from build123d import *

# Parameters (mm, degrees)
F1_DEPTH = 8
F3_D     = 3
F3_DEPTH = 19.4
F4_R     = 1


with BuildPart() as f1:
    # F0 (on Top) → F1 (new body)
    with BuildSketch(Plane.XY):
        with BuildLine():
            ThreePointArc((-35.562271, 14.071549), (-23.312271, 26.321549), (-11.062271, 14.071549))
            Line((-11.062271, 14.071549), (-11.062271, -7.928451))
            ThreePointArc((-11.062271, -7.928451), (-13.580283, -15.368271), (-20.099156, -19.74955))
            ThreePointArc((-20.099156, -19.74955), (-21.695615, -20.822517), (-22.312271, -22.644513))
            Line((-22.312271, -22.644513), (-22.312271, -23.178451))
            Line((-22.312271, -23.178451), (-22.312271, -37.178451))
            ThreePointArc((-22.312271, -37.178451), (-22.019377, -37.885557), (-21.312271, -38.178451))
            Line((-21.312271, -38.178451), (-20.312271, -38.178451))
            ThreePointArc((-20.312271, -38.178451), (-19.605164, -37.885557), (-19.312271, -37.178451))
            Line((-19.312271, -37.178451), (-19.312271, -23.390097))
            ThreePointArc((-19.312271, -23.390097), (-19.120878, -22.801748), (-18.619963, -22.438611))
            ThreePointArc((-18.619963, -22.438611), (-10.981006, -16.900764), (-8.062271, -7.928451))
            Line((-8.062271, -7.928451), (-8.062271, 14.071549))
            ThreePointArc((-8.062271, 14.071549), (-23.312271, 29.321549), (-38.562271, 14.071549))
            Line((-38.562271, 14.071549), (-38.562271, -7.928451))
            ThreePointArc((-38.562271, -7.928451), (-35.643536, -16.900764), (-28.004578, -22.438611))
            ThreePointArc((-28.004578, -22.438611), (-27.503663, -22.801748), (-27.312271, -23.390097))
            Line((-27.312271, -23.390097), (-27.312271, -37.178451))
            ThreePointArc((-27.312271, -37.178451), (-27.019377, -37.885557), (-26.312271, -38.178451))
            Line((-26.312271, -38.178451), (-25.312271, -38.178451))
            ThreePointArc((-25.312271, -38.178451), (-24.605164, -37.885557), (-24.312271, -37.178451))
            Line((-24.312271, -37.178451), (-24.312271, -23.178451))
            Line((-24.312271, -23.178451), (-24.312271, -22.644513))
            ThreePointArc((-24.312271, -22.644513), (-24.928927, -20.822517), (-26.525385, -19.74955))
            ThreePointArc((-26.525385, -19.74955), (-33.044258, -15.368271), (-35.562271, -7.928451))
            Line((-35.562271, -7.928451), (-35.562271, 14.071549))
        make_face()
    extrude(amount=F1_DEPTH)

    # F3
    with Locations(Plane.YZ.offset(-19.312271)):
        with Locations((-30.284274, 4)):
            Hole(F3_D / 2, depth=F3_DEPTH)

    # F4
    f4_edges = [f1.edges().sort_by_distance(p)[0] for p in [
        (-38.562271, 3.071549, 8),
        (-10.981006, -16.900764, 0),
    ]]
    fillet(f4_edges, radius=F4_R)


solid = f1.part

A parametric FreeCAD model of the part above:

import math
import FreeCAD as App
import Part
import Sketcher


def edges_at(feature, points):
    """Names of the edges that pass closest to the given points."""
    edges = feature.Shape.Edges
    near = lambda p: min(range(len(edges)), key=lambda i: edges[i].distToShape(Part.Vertex(*p))[0])
    return sorted({f"Edge{near(p) + 1}" for p in points})

doc = App.newDocument("Part")
body = doc.addObject("PartDesign::Body", "Body")

sketch1 = doc.addObject("Sketcher::SketchObject", "Sketch")
body.addObject(sketch1)
sketch1.AttachmentSupport = (doc.XY_Plane, [""])
sketch1.MapMode = "FlatFace"
sketch1.addGeometry([
    Part.ArcOfCircle(Part.Circle(App.Vector(-23.3, 14.1, 0), App.Vector(0, 0, 1), 12.2), math.radians(0), math.radians(180)),
    Part.LineSegment(App.Vector(-11.1, 14.1, 0), App.Vector(-11.1, -7.9, 0)),
    Part.ArcOfCircle(Part.Circle(App.Vector(-23.3, -7.9, 0), App.Vector(0, 0, 1), 12.2), math.radians(-75), math.radians(0)),
    Part.ArcOfCircle(Part.Circle(App.Vector(-19.3, -22.6, 0), App.Vector(0, 0, 1), 3), math.radians(105), math.radians(180)),
    Part.LineSegment(App.Vector(-22.3, -22.6, 0), App.Vector(-22.3, -37.2, 0)),
    Part.ArcOfCircle(Part.Circle(App.Vector(-21.3, -37.2, 0), App.Vector(0, 0, 1), 1), math.radians(-180), math.radians(-90)),
    Part.LineSegment(App.Vector(-21.3, -38.2, 0), App.Vector(-20.3, -38.2, 0)),
    Part.ArcOfCircle(Part.Circle(App.Vector(-20.3, -37.2, 0), App.Vector(0, 0, 1), 1), math.radians(-90), math.radians(0)),
    Part.LineSegment(App.Vector(-19.3, -37.2, 0), App.Vector(-19.3, -23.4, 0)),
    Part.ArcOfCircle(Part.Circle(App.Vector(-18.3, -23.4, 0), App.Vector(0, 0, 1), 1), math.radians(108), math.radians(180)),
    Part.ArcOfCircle(Part.Circle(App.Vector(-23.3, -7.9, 0), App.Vector(0, 0, 1), 15.3), math.radians(-72), math.radians(0)),
    Part.LineSegment(App.Vector(-8.1, -7.9, 0), App.Vector(-8.1, 14.1, 0)),
    Part.ArcOfCircle(Part.Circle(App.Vector(-23.3, 14.1, 0), App.Vector(0, 0, 1), 15.2), math.radians(0), math.radians(180)),
    Part.LineSegment(App.Vector(-38.6, 14.1, 0), App.Vector(-38.6, -7.9, 0)),
    Part.ArcOfCircle(Part.Circle(App.Vector(-23.3, -7.9, 0), App.Vector(0, 0, 1), 15.2), math.radians(180), math.radians(252)),
    Part.ArcOfCircle(Part.Circle(App.Vector(-28.3, -23.4, 0), App.Vector(0, 0, 1), 1), math.radians(0), math.radians(72)),
    Part.LineSegment(App.Vector(-27.3, -23.4, 0), App.Vector(-27.3, -37.2, 0)),
    Part.ArcOfCircle(Part.Circle(App.Vector(-26.3, -37.2, 0), App.Vector(0, 0, 1), 1), math.radians(-180), math.radians(-90)),
    Part.LineSegment(App.Vector(-26.3, -38.2, 0), App.Vector(-25.3, -38.2, 0)),
    Part.ArcOfCircle(Part.Circle(App.Vector(-25.3, -37.2, 0), App.Vector(0, 0, 1), 1), math.radians(-90), math.radians(0)),
    Part.LineSegment(App.Vector(-24.3, -37.2, 0), App.Vector(-24.3, -22.6, 0)),
    Part.ArcOfCircle(Part.Circle(App.Vector(-27.3, -22.6, 0), App.Vector(0, 0, 1), 3), math.radians(0), math.radians(75)),
    Part.ArcOfCircle(Part.Circle(App.Vector(-23.3, -7.9, 0), App.Vector(0, 0, 1), 12.2), math.radians(-180), math.radians(-105)),
    Part.LineSegment(App.Vector(-35.6, -7.9, 0), App.Vector(-35.6, 14.1, 0)),
], False)
sketch1.addConstraint([
    Sketcher.Constraint("Tangent", 0, 1, 1, 1),
    Sketcher.Constraint("Tangent", 1, 2, 2, 2),
    Sketcher.Constraint("Tangent", 2, 1, 3, 1),
    Sketcher.Constraint("Tangent", 3, 2, 4, 1),
    Sketcher.Constraint("Coincident", 4, 2, 5, 1),
    Sketcher.Constraint("Coincident", 5, 2, 6, 1),
    Sketcher.Constraint("Tangent", 6, 2, 7, 1),
    Sketcher.Constraint("Tangent", 7, 2, 8, 1),
    Sketcher.Constraint("Tangent", 8, 2, 9, 2),
    Sketcher.Constraint("Tangent", 9, 1, 10, 1),
    Sketcher.Constraint("Tangent", 10, 2, 11, 1),
    Sketcher.Constraint("Tangent", 11, 2, 12, 1),
    Sketcher.Constraint("Tangent", 12, 2, 13, 1),
    Sketcher.Constraint("Tangent", 13, 2, 14, 1),
    Sketcher.Constraint("Tangent", 14, 2, 15, 2),
    Sketcher.Constraint("Tangent", 15, 1, 16, 1),
    Sketcher.Constraint("Coincident", 16, 2, 17, 1),
    Sketcher.Constraint("Coincident", 17, 2, 18, 1),
    Sketcher.Constraint("Tangent", 18, 2, 19, 1),
    Sketcher.Constraint("Tangent", 19, 2, 20, 1),
    Sketcher.Constraint("Tangent", 20, 2, 21, 1),
    Sketcher.Constraint("Tangent", 21, 2, 22, 2),
    Sketcher.Constraint("Tangent", 22, 1, 23, 1),
    Sketcher.Constraint("Tangent", 23, 2, 0, 2),
    Sketcher.Constraint("Vertical", 1),
    Sketcher.Constraint("Vertical", 4),
    Sketcher.Constraint("Horizontal", 6),
    Sketcher.Constraint("Vertical", 8),
    Sketcher.Constraint("Vertical", 11),
    Sketcher.Constraint("Vertical", 13),
    Sketcher.Constraint("Vertical", 16),
    Sketcher.Constraint("Horizontal", 18),
    Sketcher.Constraint("Vertical", 20),
    Sketcher.Constraint("Vertical", 23),
    Sketcher.Constraint("Coincident", 10, 3, 2, 3),
    Sketcher.Constraint("Coincident", 12, 3, 0, 3),
    Sketcher.Constraint("Coincident", 14, 3, 2, 3),
    Sketcher.Constraint("Coincident", 22, 3, 2, 3),
    Sketcher.Constraint("Equal", 5, 7),
    Sketcher.Constraint("Equal", 7, 9),
    Sketcher.Constraint("Equal", 10, 12),
    Sketcher.Constraint("Equal", 7, 17),
    Sketcher.Constraint("Equal", 17, 19),
    Sketcher.Constraint("Equal", 3, 21),
    Sketcher.Constraint("Horizontal", 7, 3, 17, 3),
    Sketcher.Constraint("Horizontal", 3, 3, 21, 3),
    Sketcher.Constraint("Horizontal", 19, 3, 4, 2),
    Sketcher.Constraint("Horizontal", 15, 3, 8, 2),
    Sketcher.Constraint("Horizontal", 9, 1, 14, 2),
    Sketcher.Constraint("Horizontal", 7, 2, 16, 2),
    Sketcher.Constraint("Vertical", 3, 3, 7, 2),
    Sketcher.Constraint("Equal", 6, 18),
    Sketcher.Constraint("Radius", 3, 3.000001),
    Sketcher.Constraint("Radius", 7, 1.000001),
    Sketcher.Constraint("DistanceX", 6, 1, 6, 2, 1.0),
    Sketcher.Constraint("DistanceY", 1, 2, 1, 1, 22.0),
    Sketcher.Constraint("Radius", 0, 12.25),
    Sketcher.Constraint("Radius", 10, 15.25),
    Sketcher.Constraint("DistanceX", 0, 3, 3, 3, 4.000001),
    Sketcher.Constraint("DistanceY", 7, 3, 0, 3, 51.249999),
    Sketcher.Constraint("DistanceX", 0, 3, -1, 1, 23.312271),
    Sketcher.Constraint("DistanceY", -1, 1, 0, 3, 14.071549),
])
pad1 = doc.addObject("PartDesign::Pad", "Pad")
body.addObject(pad1)
pad1.Profile = sketch1
pad1.Length = 8

sketch2 = doc.addObject("Sketcher::SketchObject", "Sketch001")
body.addObject(sketch2)
sketch2.AttachmentSupport = (doc.YZ_Plane, [""])
sketch2.MapMode = "FlatFace"
sketch2.AttachmentOffset = App.Placement(App.Vector(0, 0, -19.312271), App.Rotation())
sketch2.addGeometry(Part.Circle(App.Vector(-30.3, 4, 0), App.Vector(0, 0, 1), 1.5), False)
sketch2.addConstraint([
    Sketcher.Constraint("Diameter", 0, 3.0),
    Sketcher.Constraint("DistanceY", -1, 1, 0, 3, 4.0),
    Sketcher.Constraint("DistanceX", 0, 3, -1, 1, 30.284274),
])
doc.recompute()
hole = doc.addObject("PartDesign::Hole", "Hole")
body.addObject(hole)
hole.Profile = sketch2
hole.ThreadType = "None"
hole.Diameter = 3
hole.DepthType = "Dimension"
hole.Depth = 19.4
hole.DrillPoint = "Flat"
doc.recompute()

fillet = doc.addObject("PartDesign::Fillet", "Fillet")
body.addObject(fillet)
fillet.Base = (hole, edges_at(hole, [(-38.562, 3.072, 8), (-10.981, -16.901, 0)]))
fillet.Radius = 1

doc.recompute()
